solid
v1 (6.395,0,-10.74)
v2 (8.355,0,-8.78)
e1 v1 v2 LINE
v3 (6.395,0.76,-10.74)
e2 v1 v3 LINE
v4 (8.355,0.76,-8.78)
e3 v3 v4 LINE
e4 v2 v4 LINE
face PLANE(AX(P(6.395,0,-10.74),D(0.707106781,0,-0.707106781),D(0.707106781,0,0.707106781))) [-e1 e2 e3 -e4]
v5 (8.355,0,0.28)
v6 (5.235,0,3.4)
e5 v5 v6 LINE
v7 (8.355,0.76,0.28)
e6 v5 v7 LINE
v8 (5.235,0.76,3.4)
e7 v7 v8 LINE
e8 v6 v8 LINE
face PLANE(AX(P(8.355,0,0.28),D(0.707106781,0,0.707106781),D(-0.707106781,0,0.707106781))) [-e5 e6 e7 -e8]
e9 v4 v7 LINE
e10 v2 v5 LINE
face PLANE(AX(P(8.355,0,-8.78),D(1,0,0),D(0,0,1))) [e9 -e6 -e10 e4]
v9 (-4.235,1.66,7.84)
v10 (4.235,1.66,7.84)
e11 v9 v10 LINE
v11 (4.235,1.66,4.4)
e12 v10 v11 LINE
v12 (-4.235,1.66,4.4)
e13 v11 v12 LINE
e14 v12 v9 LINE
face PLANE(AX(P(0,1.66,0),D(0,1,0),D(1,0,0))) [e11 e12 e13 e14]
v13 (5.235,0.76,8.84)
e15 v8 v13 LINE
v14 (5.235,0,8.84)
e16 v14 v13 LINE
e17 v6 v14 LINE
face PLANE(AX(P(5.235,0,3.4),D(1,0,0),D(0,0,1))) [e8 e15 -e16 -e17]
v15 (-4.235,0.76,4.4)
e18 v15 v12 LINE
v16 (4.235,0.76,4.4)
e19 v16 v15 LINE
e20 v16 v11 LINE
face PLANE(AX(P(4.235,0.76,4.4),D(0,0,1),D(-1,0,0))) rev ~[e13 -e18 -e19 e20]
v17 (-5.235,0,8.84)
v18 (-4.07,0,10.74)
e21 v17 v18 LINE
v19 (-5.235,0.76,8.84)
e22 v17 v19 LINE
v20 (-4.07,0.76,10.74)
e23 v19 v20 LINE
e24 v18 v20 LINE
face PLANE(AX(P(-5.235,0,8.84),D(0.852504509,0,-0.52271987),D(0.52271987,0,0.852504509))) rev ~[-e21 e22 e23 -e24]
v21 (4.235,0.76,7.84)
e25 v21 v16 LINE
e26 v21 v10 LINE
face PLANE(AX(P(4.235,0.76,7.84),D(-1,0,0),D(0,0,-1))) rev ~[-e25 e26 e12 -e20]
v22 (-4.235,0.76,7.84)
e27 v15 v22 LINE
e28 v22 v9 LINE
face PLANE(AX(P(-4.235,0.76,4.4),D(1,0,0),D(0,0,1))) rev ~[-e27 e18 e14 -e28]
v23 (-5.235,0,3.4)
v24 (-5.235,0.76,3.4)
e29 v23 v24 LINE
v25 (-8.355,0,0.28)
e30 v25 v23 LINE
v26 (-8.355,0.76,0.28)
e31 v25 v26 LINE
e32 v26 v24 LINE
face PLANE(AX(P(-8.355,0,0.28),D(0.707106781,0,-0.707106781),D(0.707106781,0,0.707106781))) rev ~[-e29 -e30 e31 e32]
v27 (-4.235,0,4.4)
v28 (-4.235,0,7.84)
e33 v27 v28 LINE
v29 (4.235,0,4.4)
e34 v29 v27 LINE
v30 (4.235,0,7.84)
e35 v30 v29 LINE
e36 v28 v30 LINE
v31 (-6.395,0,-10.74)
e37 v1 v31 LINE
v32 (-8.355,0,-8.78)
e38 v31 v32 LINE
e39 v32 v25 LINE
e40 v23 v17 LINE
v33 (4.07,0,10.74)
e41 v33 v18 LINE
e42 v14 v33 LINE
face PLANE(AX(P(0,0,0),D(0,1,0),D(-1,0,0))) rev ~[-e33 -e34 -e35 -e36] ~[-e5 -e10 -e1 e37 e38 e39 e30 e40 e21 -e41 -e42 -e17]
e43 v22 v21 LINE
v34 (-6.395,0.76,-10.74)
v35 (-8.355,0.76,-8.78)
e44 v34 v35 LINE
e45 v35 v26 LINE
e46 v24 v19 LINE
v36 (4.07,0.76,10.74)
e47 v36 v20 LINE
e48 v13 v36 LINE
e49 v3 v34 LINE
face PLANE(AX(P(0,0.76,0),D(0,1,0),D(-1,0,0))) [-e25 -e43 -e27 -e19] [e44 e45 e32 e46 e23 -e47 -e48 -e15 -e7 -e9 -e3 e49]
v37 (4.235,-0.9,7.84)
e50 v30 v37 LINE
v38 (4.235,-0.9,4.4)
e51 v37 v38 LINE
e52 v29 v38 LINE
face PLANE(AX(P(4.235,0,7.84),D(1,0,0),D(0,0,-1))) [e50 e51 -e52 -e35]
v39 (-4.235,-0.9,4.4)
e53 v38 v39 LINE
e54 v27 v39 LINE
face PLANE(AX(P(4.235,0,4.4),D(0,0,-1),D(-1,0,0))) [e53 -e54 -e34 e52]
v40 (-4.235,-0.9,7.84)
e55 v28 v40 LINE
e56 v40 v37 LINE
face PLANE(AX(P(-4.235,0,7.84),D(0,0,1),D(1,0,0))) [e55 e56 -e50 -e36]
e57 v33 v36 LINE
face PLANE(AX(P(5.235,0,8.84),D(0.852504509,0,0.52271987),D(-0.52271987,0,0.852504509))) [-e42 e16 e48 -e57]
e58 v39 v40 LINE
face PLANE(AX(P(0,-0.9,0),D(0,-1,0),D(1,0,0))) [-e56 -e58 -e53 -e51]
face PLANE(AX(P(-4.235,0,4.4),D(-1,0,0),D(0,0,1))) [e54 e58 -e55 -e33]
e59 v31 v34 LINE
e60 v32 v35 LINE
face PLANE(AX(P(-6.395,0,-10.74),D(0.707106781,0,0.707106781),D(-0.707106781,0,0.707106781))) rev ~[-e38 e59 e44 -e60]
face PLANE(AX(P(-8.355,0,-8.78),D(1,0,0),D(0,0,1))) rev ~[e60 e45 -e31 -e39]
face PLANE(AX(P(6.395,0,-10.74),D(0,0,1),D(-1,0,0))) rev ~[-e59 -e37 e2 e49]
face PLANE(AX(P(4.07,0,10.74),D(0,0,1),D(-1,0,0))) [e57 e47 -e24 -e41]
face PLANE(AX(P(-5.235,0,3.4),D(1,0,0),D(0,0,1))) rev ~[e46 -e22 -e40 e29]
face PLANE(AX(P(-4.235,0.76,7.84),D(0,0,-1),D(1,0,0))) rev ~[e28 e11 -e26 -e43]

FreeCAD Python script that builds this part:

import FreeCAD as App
import Part
import Sketcher

V = App.Vector

doc = App.newDocument("Part")
params = doc.addObject("Spreadsheet::Sheet", "Params")
for row, (alias, value) in enumerate([
    ("sketch1_width", "12.79 mm"),
    ("sketch1_width2", "8.14 mm"),
    ("sketch1_height", "9.06 mm"),
    ("sketch1_height2", "5.44 mm"),
    ("pad1_length", "0.76 mm"),
    ("sketch2_width", "8.47 mm"),
    ("sketch2_height", "3.44 mm"),
    ("pad2_length", "0.9 mm"),
    ("sketch3_width", "8.47 mm"),
    ("sketch3_height", "3.44 mm"),
    ("pad3_length", "0.9 mm"),
], start=1):
    params.set(f"A{row}", alias)
    params.set(f"B{row}", "=" + value)
    params.setAlias(f"B{row}", alias)

body = doc.addObject("PartDesign::Body", "Body")

sketch1 = body.newObject("Sketcher::SketchObject", "Sketch")
sketch1.AttachmentSupport = (doc.getObject("XZ_Plane"), [""])
sketch1.MapMode = "FlatFace"
sketch1.addGeometry(Part.LineSegment(V(8.355, -8.78, 0), V(6.395, -10.74, 0)), False)
sketch1.addGeometry(Part.LineSegment(V(6.395, -10.74, 0), V(-6.395, -10.74, 0)), False)
sketch1.addGeometry(Part.LineSegment(V(-6.395, -10.74, 0), V(-8.355, -8.78, 0)), False)
sketch1.addGeometry(Part.LineSegment(V(-8.355, -8.78, 0), V(-8.355, 0.28, 0)), False)
sketch1.addGeometry(Part.LineSegment(V(-8.355, 0.28, 0), V(-5.235, 3.4, 0)), False)
sketch1.addGeometry(Part.LineSegment(V(-5.235, 3.4, 0), V(-5.235, 8.84, 0)), False)
sketch1.addGeometry(Part.LineSegment(V(-5.235, 8.84, 0), V(-4.07, 10.74, 0)), False)
sketch1.addGeometry(Part.LineSegment(V(-4.07, 10.74, 0), V(4.07, 10.74, 0)), False)
sketch1.addGeometry(Part.LineSegment(V(4.07, 10.74, 0), V(5.235, 8.84, 0)), False)
sketch1.addGeometry(Part.LineSegment(V(5.235, 8.84, 0), V(5.235, 3.4, 0)), False)
sketch1.addGeometry(Part.LineSegment(V(5.235, 3.4, 0), V(8.355, 0.28, 0)), False)
sketch1.addGeometry(Part.LineSegment(V(8.355, 0.28, 0), V(8.355, -8.78, 0)), False)
sketch1.addConstraint(Sketcher.Constraint("Coincident", 0, 2, 1, 1))
sketch1.addConstraint(Sketcher.Constraint("Coincident", 1, 2, 2, 1))
sketch1.addConstraint(Sketcher.Constraint("Coincident", 2, 2, 3, 1))
sketch1.addConstraint(Sketcher.Constraint("Coincident", 3, 2, 4, 1))
sketch1.addConstraint(Sketcher.Constraint("Coincident", 4, 2, 5, 1))
sketch1.addConstraint(Sketcher.Constraint("Coincident", 5, 2, 6, 1))
sketch1.addConstraint(Sketcher.Constraint("Coincident", 6, 2, 7, 1))
sketch1.addConstraint(Sketcher.Constraint("Coincident", 7, 2, 8, 1))
sketch1.addConstraint(Sketcher.Constraint("Coincident", 8, 2, 9, 1))
sketch1.addConstraint(Sketcher.Constraint("Coincident", 9, 2, 10, 1))
sketch1.addConstraint(Sketcher.Constraint("Coincident", 10, 2, 11, 1))
sketch1.addConstraint(Sketcher.Constraint("Coincident", 11, 2, 0, 1))
sketch1.addConstraint(Sketcher.Constraint("Horizontal", 1))
sketch1.addConstraint(Sketcher.Constraint("Vertical", 3))
sketch1.addConstraint(Sketcher.Constraint("Vertical", 5))
sketch1.addConstraint(Sketcher.Constraint("Horizontal", 7))
sketch1.addConstraint(Sketcher.Constraint("Vertical", 9))
sketch1.addConstraint(Sketcher.Constraint("Vertical", 11))
sketch1.addConstraint(Sketcher.Constraint("Symmetric", 5, 2, 8, 2, -2))
sketch1.addConstraint(Sketcher.Constraint("Symmetric", 3, 2, 10, 2, -2))
sketch1.addConstraint(Sketcher.Constraint("Perpendicular", 0, 2))
sketch1.addConstraint(Sketcher.Constraint("Perpendicular", 2, 4))
sketch1.addConstraint(Sketcher.Constraint("Perpendicular", 4, 10))
sketch1.addConstraint(Sketcher.Constraint("Horizontal", 4, 2, 9, 2))
sketch1.addConstraint(Sketcher.Constraint("Horizontal", 2, 2, 11, 2))
sketch1.addConstraint(Sketcher.Constraint("Equal", 6, 8))
sketch1.addConstraint(Sketcher.Constraint("DistanceX", 1, 2, 1, 1, 12.79))
sketch1.addConstraint(Sketcher.Constraint("DistanceX", 7, 1, 7, 2, 8.14))
sketch1.addConstraint(Sketcher.Constraint("DistanceY", 3, 1, 3, 2, 9.06))
sketch1.addConstraint(Sketcher.Constraint("DistanceY", 5, 1, 5, 2, 5.44))
sketch1.addConstraint(Sketcher.Constraint("DistanceY", -1, 1, 4, 2, 3.4))
sketch1.addConstraint(Sketcher.Constraint("DistanceY", 5, 2, 6, 2, 1.9))
sketch1.addConstraint(Sketcher.Constraint("DistanceY", 0, 2, -1, 1, 10.74))
sketch1.addConstraint(Sketcher.Constraint("DistanceY", 2, 2, -1, 1, 8.78))
sketch1.setExpression("Constraints[26]", "Params.sketch1_width")
sketch1.setExpression("Constraints[27]", "Params.sketch1_width2")
sketch1.setExpression("Constraints[28]", "Params.sketch1_height")
sketch1.setExpression("Constraints[29]", "Params.sketch1_height2")
pad1 = body.newObject("PartDesign::Pad", "Pad")
pad1.Profile = sketch1
pad1.setExpression("Length", "Params.pad1_length")
pad1.Reversed = True

sketch2 = body.newObject("Sketcher::SketchObject", "Sketch001")
sketch2.AttachmentSupport = (doc.getObject("XZ_Plane"), [""])
sketch2.MapMode = "FlatFace"
sketch2.AttachmentOffset = App.Placement(V(0, 0, -0.76), App.Rotation())
sketch2.addGeometry(Part.LineSegment(V(4.235, 7.84, 0), V(4.235, 4.4, 0)), False)
sketch2.addGeometry(Part.LineSegment(V(4.235, 4.4, 0), V(-4.235, 4.4, 0)), False)
sketch2.addGeometry(Part.LineSegment(V(-4.235, 4.4, 0), V(-4.235, 7.84, 0)), False)
sketch2.addGeometry(Part.LineSegment(V(-4.235, 7.84, 0), V(4.235, 7.84, 0)), False)
sketch2.addConstraint(Sketcher.Constraint("Coincident", 0, 2, 1, 1))
sketch2.addConstraint(Sketcher.Constraint("Coincident", 1, 2, 2, 1))
sketch2.addConstraint(Sketcher.Constraint("Coincident", 2, 2, 3, 1))
sketch2.addConstraint(Sketcher.Constraint("Coincident", 3, 2, 0, 1))
sketch2.addConstraint(Sketcher.Constraint("Vertical", 0))
sketch2.addConstraint(Sketcher.Constraint("Horizontal", 1))
sketch2.addConstraint(Sketcher.Constraint("Vertical", 2))
sketch2.addConstraint(Sketcher.Constraint("Horizontal", 3))
sketch2.addConstraint(Sketcher.Constraint("DistanceX", 1, 2, 1, 1, 8.47))
sketch2.addConstraint(Sketcher.Constraint("DistanceY", 0, 2, 0, 1, 3.44))
sketch2.addConstraint(Sketcher.Constraint("DistanceY", -1, 1, 0, 2, 4.4))
sketch2.addConstraint(Sketcher.Constraint("DistanceX", -1, 1, 0, 2, 4.235))
sketch2.setExpression("Constraints[8]", "Params.sketch2_width")
sketch2.setExpression("Constraints[9]", "Params.sketch2_height")
pad2 = body.newObject("PartDesign::Pad", "Pad001")
pad2.Profile = sketch2
pad2.setExpression("Length", "Params.pad2_length")
pad2.Reversed = True

sketch3 = body.newObject("Sketcher::SketchObject", "Sketch002")
sketch3.AttachmentSupport = (doc.getObject("XZ_Plane"), [""])
sketch3.MapMode = "FlatFace"
sketch3.addGeometry(Part.LineSegment(V(-4.235, 4.4, 0), V(4.235, 4.4, 0)), False)
sketch3.addGeometry(Part.LineSegment(V(4.235, 4.4, 0), V(4.235, 7.84, 0)), False)
sketch3.addGeometry(Part.LineSegment(V(4.235, 7.84, 0), V(-4.235, 7.84, 0)), False)
sketch3.addGeometry(Part.LineSegment(V(-4.235, 7.84, 0), V(-4.235, 4.4, 0)), False)
sketch3.addConstraint(Sketcher.Constraint("Coincident", 0, 2, 1, 1))
sketch3.addConstraint(Sketcher.Constraint("Coincident", 1, 2, 2, 1))
sketch3.addConstraint(Sketcher.Constraint("Coincident", 2, 2, 3, 1))
sketch3.addConstraint(Sketcher.Constraint("Coincident", 3, 2, 0, 1))
sketch3.addConstraint(Sketcher.Constraint("Horizontal", 0))
sketch3.addConstraint(Sketcher.Constraint("Vertical", 1))
sketch3.addConstraint(Sketcher.Constraint("Horizontal", 2))
sketch3.addConstraint(Sketcher.Constraint("Vertical", 3))
sketch3.addConstraint(Sketcher.Constraint("DistanceX", 0, 1, 0, 2, 8.47))
sketch3.addConstraint(Sketcher.Constraint("DistanceY", 1, 1, 1, 2, 3.44))
sketch3.addConstraint(Sketcher.Constraint("DistanceY", -1, 1, 0, 2, 4.4))
sketch3.addConstraint(Sketcher.Constraint("DistanceX", -1, 1, 0, 2, 4.235))
sketch3.setExpression("Constraints[8]", "Params.sketch3_width")
sketch3.setExpression("Constraints[9]", "Params.sketch3_height")
pad3 = body.newObject("PartDesign::Pad", "Pad002")
pad3.Profile = sketch3
pad3.setExpression("Length", "Params.pad3_length")

doc.recompute()
